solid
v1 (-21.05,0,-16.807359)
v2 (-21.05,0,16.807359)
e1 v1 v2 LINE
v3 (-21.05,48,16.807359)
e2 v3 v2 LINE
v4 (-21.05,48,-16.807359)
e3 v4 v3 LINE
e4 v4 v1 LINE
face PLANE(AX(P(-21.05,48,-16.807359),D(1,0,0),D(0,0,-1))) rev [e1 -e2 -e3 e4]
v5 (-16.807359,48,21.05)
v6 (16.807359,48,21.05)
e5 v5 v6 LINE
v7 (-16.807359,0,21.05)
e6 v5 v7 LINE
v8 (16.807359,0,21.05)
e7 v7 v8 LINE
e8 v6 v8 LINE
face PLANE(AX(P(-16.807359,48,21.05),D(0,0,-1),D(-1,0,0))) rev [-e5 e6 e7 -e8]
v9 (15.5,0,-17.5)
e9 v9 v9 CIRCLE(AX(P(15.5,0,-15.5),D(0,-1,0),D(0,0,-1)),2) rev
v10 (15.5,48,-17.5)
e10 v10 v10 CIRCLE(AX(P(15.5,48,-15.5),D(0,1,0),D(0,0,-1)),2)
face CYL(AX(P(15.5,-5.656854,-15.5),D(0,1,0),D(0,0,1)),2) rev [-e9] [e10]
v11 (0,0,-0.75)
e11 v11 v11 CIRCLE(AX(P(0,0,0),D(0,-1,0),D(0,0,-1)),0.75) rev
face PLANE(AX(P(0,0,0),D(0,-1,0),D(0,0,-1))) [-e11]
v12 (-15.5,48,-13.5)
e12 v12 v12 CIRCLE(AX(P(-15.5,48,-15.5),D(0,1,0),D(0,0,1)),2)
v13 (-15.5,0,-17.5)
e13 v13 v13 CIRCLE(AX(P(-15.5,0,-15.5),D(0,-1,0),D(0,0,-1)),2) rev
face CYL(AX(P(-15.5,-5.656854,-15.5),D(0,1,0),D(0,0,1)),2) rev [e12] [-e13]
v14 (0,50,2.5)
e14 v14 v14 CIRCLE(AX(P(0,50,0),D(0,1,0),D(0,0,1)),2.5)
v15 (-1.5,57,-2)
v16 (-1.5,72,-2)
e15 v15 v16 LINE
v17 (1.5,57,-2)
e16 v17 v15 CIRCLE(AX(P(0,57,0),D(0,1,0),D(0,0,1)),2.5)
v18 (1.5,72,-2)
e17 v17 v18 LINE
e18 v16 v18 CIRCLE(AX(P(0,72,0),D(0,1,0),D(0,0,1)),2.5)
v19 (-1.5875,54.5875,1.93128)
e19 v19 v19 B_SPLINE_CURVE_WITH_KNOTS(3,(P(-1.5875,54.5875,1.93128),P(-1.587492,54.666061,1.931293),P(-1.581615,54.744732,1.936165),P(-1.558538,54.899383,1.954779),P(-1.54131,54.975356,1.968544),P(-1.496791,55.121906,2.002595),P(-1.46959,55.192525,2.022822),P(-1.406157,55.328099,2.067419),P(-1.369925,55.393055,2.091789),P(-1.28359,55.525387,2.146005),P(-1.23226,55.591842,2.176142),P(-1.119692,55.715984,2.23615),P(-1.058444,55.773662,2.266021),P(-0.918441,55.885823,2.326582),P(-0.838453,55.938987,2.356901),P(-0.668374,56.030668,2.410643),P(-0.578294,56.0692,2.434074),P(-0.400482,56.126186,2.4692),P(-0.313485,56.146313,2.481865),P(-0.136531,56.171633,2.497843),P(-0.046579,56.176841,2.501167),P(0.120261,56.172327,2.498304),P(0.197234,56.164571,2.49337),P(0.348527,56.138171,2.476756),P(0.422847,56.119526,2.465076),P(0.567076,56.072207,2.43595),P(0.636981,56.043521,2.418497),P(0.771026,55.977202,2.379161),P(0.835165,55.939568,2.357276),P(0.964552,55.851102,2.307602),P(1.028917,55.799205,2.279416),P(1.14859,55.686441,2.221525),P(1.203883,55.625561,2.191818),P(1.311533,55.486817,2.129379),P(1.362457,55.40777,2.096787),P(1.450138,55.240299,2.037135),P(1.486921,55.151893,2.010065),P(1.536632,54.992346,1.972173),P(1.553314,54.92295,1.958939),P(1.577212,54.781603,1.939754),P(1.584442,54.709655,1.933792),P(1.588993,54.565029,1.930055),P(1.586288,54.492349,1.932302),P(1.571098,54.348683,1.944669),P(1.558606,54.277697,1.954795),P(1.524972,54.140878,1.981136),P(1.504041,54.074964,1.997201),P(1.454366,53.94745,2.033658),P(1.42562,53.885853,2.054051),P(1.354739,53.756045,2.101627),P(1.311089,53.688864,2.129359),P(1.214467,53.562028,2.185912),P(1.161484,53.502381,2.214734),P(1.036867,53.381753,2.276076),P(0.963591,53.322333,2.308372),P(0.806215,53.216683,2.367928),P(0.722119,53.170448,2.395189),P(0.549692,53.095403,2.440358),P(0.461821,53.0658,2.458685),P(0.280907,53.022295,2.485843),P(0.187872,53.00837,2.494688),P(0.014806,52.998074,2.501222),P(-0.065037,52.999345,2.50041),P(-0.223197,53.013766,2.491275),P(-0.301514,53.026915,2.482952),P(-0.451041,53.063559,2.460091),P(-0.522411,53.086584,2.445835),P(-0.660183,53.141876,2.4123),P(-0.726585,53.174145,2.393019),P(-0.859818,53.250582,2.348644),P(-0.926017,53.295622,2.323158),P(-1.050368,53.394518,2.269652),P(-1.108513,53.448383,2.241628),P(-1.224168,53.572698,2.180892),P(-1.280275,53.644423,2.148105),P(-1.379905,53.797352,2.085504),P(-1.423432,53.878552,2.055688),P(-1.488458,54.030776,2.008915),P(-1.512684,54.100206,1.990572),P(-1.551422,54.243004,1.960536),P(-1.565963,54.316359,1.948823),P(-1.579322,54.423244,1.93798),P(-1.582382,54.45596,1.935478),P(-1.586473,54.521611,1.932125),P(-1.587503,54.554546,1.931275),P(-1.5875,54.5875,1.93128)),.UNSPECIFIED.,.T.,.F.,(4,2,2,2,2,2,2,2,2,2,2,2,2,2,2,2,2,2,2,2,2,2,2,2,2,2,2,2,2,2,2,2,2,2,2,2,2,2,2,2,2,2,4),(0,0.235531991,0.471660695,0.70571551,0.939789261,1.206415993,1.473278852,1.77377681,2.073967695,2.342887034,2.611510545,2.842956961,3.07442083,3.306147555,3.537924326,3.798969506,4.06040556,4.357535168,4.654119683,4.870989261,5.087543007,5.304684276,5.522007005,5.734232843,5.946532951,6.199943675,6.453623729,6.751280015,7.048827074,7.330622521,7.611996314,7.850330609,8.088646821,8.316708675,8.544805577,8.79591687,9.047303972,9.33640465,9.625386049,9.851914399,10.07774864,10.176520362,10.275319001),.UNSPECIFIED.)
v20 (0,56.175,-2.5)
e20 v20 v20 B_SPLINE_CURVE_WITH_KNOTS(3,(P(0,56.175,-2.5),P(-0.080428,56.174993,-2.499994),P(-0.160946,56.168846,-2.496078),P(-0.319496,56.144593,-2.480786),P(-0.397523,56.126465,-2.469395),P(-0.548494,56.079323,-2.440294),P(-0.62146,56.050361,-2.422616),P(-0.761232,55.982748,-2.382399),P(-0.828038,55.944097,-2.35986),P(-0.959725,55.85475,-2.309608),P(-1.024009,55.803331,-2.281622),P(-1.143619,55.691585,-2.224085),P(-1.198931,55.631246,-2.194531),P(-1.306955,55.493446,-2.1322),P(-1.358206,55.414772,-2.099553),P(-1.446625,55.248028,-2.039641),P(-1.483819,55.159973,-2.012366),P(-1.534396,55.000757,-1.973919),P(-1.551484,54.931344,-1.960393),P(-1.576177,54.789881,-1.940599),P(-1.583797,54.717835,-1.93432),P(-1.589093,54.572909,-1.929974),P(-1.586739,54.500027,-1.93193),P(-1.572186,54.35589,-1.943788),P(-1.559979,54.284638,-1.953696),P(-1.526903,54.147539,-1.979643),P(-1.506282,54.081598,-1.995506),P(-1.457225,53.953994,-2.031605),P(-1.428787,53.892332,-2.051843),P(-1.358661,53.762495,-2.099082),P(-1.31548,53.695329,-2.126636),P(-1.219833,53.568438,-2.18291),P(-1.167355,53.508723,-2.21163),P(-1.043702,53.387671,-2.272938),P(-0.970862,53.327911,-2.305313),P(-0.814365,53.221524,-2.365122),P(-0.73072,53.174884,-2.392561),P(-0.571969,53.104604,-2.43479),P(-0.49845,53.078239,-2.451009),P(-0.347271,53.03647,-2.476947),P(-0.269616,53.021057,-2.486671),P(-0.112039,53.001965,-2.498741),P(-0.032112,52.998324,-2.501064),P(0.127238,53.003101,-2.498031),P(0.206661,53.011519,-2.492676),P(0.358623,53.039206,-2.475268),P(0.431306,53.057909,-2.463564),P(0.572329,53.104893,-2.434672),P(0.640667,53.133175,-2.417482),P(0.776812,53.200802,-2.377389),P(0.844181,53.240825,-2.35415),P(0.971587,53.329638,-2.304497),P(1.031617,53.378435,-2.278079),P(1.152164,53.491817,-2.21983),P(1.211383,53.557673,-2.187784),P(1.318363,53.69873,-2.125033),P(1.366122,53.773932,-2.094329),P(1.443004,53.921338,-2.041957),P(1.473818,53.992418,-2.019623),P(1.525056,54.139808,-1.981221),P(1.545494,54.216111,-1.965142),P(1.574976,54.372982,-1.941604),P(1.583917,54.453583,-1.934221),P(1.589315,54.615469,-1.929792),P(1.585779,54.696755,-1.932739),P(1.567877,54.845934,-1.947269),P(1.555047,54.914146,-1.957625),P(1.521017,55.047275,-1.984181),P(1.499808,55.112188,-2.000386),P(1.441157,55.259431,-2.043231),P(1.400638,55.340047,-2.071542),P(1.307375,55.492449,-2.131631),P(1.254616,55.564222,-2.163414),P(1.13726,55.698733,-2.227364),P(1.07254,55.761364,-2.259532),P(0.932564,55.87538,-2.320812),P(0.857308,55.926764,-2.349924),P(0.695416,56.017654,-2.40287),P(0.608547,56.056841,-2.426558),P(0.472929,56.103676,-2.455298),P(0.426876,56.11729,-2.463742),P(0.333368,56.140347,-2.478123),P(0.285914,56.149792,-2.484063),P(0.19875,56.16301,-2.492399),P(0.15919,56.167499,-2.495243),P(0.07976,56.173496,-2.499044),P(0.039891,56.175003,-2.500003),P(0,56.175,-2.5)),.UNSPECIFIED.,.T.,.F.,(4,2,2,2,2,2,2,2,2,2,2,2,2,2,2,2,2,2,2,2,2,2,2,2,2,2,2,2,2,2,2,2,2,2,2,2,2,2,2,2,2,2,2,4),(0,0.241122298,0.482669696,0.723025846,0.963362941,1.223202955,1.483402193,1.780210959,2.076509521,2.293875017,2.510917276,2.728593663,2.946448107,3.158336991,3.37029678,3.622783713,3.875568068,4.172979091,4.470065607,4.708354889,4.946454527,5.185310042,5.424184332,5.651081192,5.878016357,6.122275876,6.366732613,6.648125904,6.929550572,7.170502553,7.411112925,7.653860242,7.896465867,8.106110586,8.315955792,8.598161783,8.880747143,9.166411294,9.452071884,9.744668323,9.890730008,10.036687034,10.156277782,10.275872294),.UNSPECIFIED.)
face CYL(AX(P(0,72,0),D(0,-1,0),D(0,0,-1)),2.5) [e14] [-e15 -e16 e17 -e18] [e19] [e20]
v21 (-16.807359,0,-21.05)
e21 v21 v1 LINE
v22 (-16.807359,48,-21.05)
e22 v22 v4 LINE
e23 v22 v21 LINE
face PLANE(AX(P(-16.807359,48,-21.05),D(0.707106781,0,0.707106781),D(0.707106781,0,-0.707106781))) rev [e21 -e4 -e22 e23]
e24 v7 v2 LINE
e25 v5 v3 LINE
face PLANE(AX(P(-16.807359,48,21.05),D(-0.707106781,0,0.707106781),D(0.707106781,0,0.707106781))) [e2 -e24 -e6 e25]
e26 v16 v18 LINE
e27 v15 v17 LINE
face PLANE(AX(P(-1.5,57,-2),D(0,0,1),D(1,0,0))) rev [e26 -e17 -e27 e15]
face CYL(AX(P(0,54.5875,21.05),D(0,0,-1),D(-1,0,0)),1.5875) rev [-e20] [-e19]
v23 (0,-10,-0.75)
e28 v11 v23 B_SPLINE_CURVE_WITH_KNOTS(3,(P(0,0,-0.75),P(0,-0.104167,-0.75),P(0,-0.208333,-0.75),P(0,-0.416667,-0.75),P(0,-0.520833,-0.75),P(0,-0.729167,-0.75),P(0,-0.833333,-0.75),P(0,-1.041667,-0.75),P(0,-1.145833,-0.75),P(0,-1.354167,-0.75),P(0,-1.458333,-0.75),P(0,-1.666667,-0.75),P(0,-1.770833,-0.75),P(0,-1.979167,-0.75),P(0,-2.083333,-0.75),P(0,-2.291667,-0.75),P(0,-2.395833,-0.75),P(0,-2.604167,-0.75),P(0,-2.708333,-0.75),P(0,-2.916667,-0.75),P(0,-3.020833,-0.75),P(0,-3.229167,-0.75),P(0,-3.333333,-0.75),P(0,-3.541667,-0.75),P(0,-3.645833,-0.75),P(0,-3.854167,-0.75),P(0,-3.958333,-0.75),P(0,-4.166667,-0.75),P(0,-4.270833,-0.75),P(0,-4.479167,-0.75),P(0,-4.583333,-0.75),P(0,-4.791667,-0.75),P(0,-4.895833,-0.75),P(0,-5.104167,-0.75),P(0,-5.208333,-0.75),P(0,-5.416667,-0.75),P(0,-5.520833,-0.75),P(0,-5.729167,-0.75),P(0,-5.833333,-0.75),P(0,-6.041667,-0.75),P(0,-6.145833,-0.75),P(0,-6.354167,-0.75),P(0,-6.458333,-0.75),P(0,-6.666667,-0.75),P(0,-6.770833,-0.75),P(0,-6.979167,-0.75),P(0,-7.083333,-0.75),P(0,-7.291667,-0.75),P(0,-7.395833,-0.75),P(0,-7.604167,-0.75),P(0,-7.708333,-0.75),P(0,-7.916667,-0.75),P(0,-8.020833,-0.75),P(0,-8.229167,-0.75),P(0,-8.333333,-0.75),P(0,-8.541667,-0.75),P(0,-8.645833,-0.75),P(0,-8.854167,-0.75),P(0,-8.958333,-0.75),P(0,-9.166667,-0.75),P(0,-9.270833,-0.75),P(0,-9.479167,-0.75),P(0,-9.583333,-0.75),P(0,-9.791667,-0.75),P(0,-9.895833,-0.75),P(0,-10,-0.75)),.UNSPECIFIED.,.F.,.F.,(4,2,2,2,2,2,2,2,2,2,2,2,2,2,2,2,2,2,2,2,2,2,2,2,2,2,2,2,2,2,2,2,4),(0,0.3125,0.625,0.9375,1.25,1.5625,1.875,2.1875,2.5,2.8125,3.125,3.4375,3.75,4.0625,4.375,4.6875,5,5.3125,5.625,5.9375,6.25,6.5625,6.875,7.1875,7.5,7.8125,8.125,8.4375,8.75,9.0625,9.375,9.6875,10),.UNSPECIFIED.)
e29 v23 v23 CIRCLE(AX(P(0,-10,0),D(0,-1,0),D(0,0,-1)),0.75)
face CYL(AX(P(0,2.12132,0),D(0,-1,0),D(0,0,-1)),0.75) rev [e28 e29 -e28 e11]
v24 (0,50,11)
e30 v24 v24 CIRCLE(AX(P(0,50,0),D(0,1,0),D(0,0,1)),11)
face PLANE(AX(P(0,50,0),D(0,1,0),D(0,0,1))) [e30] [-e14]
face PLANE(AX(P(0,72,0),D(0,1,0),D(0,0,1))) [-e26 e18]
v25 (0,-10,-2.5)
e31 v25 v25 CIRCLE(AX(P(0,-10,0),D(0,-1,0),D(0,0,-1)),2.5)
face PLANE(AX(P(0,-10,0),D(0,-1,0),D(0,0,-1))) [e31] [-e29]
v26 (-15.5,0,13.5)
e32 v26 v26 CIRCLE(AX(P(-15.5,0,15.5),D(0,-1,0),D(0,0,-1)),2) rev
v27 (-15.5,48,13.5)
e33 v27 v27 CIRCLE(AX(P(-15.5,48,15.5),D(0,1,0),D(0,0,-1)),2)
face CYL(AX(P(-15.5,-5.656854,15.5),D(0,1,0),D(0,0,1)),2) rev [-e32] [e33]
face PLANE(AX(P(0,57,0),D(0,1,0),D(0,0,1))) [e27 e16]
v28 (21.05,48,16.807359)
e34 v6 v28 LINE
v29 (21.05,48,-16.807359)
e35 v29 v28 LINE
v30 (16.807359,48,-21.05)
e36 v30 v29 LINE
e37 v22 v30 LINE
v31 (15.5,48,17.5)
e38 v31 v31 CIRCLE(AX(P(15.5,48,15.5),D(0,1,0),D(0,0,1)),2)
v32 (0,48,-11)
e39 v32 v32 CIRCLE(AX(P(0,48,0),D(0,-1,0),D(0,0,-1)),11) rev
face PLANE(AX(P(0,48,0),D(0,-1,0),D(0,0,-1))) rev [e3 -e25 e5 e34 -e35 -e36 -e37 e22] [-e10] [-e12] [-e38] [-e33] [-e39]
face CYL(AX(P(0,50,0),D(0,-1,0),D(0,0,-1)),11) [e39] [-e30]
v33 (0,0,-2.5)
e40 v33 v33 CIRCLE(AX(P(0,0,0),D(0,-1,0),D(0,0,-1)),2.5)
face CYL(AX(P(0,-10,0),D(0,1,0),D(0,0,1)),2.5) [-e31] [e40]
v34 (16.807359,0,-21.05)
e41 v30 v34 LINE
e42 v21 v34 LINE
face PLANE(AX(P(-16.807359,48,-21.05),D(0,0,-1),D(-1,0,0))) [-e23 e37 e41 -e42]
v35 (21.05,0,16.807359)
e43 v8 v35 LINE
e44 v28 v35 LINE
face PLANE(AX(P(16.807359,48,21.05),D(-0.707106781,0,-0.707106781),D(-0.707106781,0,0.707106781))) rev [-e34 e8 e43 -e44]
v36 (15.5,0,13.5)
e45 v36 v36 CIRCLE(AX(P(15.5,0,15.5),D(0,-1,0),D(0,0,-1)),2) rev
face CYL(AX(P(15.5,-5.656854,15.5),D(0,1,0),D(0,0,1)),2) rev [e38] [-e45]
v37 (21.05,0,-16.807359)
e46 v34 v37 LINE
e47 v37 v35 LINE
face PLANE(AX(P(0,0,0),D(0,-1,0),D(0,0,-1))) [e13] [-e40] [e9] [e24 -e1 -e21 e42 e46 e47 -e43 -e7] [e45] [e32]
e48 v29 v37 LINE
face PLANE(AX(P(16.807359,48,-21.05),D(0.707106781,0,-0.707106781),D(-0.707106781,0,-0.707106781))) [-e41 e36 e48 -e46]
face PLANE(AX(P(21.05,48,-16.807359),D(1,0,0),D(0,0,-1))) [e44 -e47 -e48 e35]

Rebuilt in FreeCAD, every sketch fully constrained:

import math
import FreeCAD as App
import Part
import Sketcher

V = App.Vector


def add_polygon(sketch, points):
    """Adds a closed chain of lines whose ends are joined by coincident constraints."""
    first, n = sketch.GeometryCount, len(points)
    for a, b in zip(points, points[1:] + points[:1]):
        sketch.addGeometry(Part.LineSegment(App.Vector(*a, 0), App.Vector(*b, 0)), False)
    for i in range(n):
        sketch.addConstraint(Sketcher.Constraint("Coincident", first + i, 2, first + (i + 1) % n, 1))

doc = App.newDocument("Part")
body = doc.addObject("PartDesign::Body", "Body")

# Sketch on XZ plane
sketch1 = doc.addObject("Sketcher::SketchObject", "Sketch")
body.addObject(sketch1)
sketch1.AttachmentSupport = (doc.XZ_Plane, [""])
sketch1.MapMode = "FlatFace"
add_polygon(sketch1, [(17, 21), (21, 17), (21, -17), (17, -21), (-17, -21), (-21, -17), (-21, 17), (-17, 21)])  # lines 0-7
sketch1.addConstraint([
    Sketcher.Constraint("Vertical", 1),
    Sketcher.Constraint("Horizontal", 3),
    Sketcher.Constraint("Vertical", 5),
    Sketcher.Constraint("Horizontal", 7),
    Sketcher.Constraint("Symmetric", 0, 2, 4, 2, -1, 1),
    Sketcher.Constraint("Symmetric", 2, 2, 6, 2, -1, 1),
    Sketcher.Constraint("Perpendicular", 0, 2),
    Sketcher.Constraint("Perpendicular", 2, 4),
    Sketcher.Constraint("Perpendicular", 4, 6),
    Sketcher.Constraint("Horizontal", 1, 2, 4, 2),
    Sketcher.Constraint("Vertical", 3, 2, 6, 2),
    Sketcher.Constraint("Equal", 7, 1),
    Sketcher.Constraint("Distance", 0, 6.0),
    Sketcher.Constraint("DistanceX", 4, 2, 1, 2, 42.1),
])
pad1 = doc.addObject("PartDesign::Pad", "Pad")
body.addObject(pad1)
pad1.Profile = sketch1
pad1.Length = 48
pad1.Reversed = True

# Sketch on XZ plane
sketch2 = doc.addObject("Sketcher::SketchObject", "Sketch001")
body.addObject(sketch2)
sketch2.AttachmentSupport = (doc.XZ_Plane, [""])
sketch2.MapMode = "FlatFace"
sketch2.AttachmentOffset = App.Placement(V(0, 0, -48), App.Rotation())
sketch2.addGeometry([
    Part.Circle(V(-15.5, -15.5, 0), V(0, 0, 1), 2),
    Part.Circle(V(15.5, -15.5, 0), V(0, 0, 1), 2),
    Part.Circle(V(15.5, 15.5, 0), V(0, 0, 1), 2),
    Part.Circle(V(-15.5, 15.5, 0), V(0, 0, 1), 2),
], False)
sketch2.addConstraint([
    Sketcher.Constraint("Equal", 0, 1),
    Sketcher.Constraint("Equal", 1, 2),
    Sketcher.Constraint("Equal", 2, 3),
    Sketcher.Constraint("Symmetric", 0, 3, 2, 3, -1, 1),
    Sketcher.Constraint("Symmetric", 1, 3, 3, 3, -1, 1),
    Sketcher.Constraint("Symmetric", 0, 3, 1, 3, -2),
    Sketcher.Constraint("Diameter", 0, 4.0),
    Sketcher.Constraint("DistanceX", 0, 3, 1, 3, 31.0),
    Sketcher.Constraint("DistanceY", 1, 3, 2, 3, 31.0),
])
pocket1 = doc.addObject("PartDesign::Pocket", "Pocket")
body.addObject(pocket1)
pocket1.Profile = sketch2
pocket1.Length = 48
pocket1.Reversed = True

# Sketch on XZ plane
sketch3 = doc.addObject("Sketcher::SketchObject", "Sketch002")
body.addObject(sketch3)
sketch3.AttachmentSupport = (doc.XZ_Plane, [""])
sketch3.MapMode = "FlatFace"
sketch3.AttachmentOffset = App.Placement(V(0, 0, -48), App.Rotation())
sketch3.addGeometry(Part.Circle(V(0, 0, 0), V(0, 0, 1), 11), False)
sketch3.addConstraint([
    Sketcher.Constraint("Coincident", 0, 3, -1, 1),
    Sketcher.Constraint("Diameter", 0, 22.0),
])
pad2 = doc.addObject("PartDesign::Pad", "Pad001")
body.addObject(pad2)
pad2.Profile = sketch3
pad2.Length = 2
pad2.Reversed = True

# Sketch on XZ plane
sketch4 = doc.addObject("Sketcher::SketchObject", "Sketch003")
body.addObject(sketch4)
sketch4.AttachmentSupport = (doc.XZ_Plane, [""])
sketch4.MapMode = "FlatFace"
sketch4.AttachmentOffset = App.Placement(V(0, 0, -50), App.Rotation())
sketch4.addGeometry(Part.Circle(V(0, 0, 0), V(0, 0, 1), 2.5), False)
sketch4.addConstraint([
    Sketcher.Constraint("Coincident", 0, 3, -1, 1),
    Sketcher.Constraint("Diameter", 0, 5.0),
])
pad3 = doc.addObject("PartDesign::Pad", "Pad002")
body.addObject(pad3)
pad3.Profile = sketch4
pad3.Length = 22
pad3.Reversed = True

# Sketch on XZ plane
sketch5 = doc.addObject("Sketcher::SketchObject", "Sketch004")
body.addObject(sketch5)
sketch5.AttachmentSupport = (doc.XZ_Plane, [""])
sketch5.MapMode = "FlatFace"
sketch5.AttachmentOffset = App.Placement(V(0, 0, -57), App.Rotation())
sketch5.addGeometry([
    Part.LineSegment(V(-1.5, -2, 0), V(1.5, -2, 0)),
    Part.ArcOfCircle(Part.Circle(V(0, 0, 0), V(0, 0, 1), 2.5), math.radians(-127), math.radians(-53)),
], False)
sketch5.addConstraint([
    Sketcher.Constraint("Coincident", 0, 1, 1, 1),
    Sketcher.Constraint("Coincident", 1, 2, 0, 2),
    Sketcher.Constraint("Horizontal", 0),
    Sketcher.Constraint("Coincident", 1, 3, -1, 1),
    Sketcher.Constraint("Radius", 1, 2.5),
    Sketcher.Constraint("DistanceX", 0, 1, 0, 2, 3.0),
])
pocket2 = doc.addObject("PartDesign::Pocket", "Pocket001")
body.addObject(pocket2)
pocket2.Profile = sketch5
pocket2.Length = 15

# Sketch on XY plane
sketch6 = doc.addObject("Sketcher::SketchObject", "Sketch005")
body.addObject(sketch6)
sketch6.AttachmentSupport = (doc.XY_Plane, [""])
sketch6.MapMode = "FlatFace"
sketch6.AttachmentOffset = App.Placement(V(0, 0, -2.5), App.Rotation())
sketch6.addGeometry(Part.Circle(V(0, 54.6, 0), V(0, 0, 1), 1.6), False)
sketch6.addConstraint([
    Sketcher.Constraint("PointOnObject", 0, 3, -2),
    Sketcher.Constraint("Diameter", 0, 3.175),
    Sketcher.Constraint("DistanceY", -1, 1, 0, 3, 54.5875),
])
pocket3 = doc.addObject("PartDesign::Pocket", "Pocket002")
body.addObject(pocket3)
pocket3.Profile = sketch6
pocket3.Type = "ThroughAll"
pocket3.Reversed = True

# Sketch on XZ plane
sketch7 = doc.addObject("Sketcher::SketchObject", "Sketch006")
body.addObject(sketch7)
sketch7.AttachmentSupport = (doc.XZ_Plane, [""])
sketch7.MapMode = "FlatFace"
sketch7.AttachmentOffset = App.Placement(V(0, 0, 10), App.Rotation())
sketch7.addGeometry(Part.Circle(V(0, 0, 0), V(0, 0, 1), 2.5), False)
sketch7.addConstraint([
    Sketcher.Constraint("Coincident", 0, 3, -1, 1),
    Sketcher.Constraint("Diameter", 0, 5.0),
])
pad4 = doc.addObject("PartDesign::Pad", "Pad003")
body.addObject(pad4)
pad4.Profile = sketch7
pad4.Length = 10
pad4.Reversed = True

# Sketch on XZ plane
sketch8 = doc.addObject("Sketcher::SketchObject", "Sketch007")
body.addObject(sketch8)
sketch8.AttachmentSupport = (doc.XZ_Plane, [""])
sketch8.MapMode = "FlatFace"
sketch8.AttachmentOffset = App.Placement(V(0, 0, 10), App.Rotation())
sketch8.addGeometry(Part.Circle(V(0, 0, 0), V(0, 0, 1), 0.8), False)
sketch8.addConstraint([
    Sketcher.Constraint("Coincident", 0, 3, -1, 1),
    Sketcher.Constraint("Diameter", 0, 1.5),
])
pocket4 = doc.addObject("PartDesign::Pocket", "Pocket003")
body.addObject(pocket4)
pocket4.Profile = sketch8
pocket4.Length = 10

doc.recompute()
